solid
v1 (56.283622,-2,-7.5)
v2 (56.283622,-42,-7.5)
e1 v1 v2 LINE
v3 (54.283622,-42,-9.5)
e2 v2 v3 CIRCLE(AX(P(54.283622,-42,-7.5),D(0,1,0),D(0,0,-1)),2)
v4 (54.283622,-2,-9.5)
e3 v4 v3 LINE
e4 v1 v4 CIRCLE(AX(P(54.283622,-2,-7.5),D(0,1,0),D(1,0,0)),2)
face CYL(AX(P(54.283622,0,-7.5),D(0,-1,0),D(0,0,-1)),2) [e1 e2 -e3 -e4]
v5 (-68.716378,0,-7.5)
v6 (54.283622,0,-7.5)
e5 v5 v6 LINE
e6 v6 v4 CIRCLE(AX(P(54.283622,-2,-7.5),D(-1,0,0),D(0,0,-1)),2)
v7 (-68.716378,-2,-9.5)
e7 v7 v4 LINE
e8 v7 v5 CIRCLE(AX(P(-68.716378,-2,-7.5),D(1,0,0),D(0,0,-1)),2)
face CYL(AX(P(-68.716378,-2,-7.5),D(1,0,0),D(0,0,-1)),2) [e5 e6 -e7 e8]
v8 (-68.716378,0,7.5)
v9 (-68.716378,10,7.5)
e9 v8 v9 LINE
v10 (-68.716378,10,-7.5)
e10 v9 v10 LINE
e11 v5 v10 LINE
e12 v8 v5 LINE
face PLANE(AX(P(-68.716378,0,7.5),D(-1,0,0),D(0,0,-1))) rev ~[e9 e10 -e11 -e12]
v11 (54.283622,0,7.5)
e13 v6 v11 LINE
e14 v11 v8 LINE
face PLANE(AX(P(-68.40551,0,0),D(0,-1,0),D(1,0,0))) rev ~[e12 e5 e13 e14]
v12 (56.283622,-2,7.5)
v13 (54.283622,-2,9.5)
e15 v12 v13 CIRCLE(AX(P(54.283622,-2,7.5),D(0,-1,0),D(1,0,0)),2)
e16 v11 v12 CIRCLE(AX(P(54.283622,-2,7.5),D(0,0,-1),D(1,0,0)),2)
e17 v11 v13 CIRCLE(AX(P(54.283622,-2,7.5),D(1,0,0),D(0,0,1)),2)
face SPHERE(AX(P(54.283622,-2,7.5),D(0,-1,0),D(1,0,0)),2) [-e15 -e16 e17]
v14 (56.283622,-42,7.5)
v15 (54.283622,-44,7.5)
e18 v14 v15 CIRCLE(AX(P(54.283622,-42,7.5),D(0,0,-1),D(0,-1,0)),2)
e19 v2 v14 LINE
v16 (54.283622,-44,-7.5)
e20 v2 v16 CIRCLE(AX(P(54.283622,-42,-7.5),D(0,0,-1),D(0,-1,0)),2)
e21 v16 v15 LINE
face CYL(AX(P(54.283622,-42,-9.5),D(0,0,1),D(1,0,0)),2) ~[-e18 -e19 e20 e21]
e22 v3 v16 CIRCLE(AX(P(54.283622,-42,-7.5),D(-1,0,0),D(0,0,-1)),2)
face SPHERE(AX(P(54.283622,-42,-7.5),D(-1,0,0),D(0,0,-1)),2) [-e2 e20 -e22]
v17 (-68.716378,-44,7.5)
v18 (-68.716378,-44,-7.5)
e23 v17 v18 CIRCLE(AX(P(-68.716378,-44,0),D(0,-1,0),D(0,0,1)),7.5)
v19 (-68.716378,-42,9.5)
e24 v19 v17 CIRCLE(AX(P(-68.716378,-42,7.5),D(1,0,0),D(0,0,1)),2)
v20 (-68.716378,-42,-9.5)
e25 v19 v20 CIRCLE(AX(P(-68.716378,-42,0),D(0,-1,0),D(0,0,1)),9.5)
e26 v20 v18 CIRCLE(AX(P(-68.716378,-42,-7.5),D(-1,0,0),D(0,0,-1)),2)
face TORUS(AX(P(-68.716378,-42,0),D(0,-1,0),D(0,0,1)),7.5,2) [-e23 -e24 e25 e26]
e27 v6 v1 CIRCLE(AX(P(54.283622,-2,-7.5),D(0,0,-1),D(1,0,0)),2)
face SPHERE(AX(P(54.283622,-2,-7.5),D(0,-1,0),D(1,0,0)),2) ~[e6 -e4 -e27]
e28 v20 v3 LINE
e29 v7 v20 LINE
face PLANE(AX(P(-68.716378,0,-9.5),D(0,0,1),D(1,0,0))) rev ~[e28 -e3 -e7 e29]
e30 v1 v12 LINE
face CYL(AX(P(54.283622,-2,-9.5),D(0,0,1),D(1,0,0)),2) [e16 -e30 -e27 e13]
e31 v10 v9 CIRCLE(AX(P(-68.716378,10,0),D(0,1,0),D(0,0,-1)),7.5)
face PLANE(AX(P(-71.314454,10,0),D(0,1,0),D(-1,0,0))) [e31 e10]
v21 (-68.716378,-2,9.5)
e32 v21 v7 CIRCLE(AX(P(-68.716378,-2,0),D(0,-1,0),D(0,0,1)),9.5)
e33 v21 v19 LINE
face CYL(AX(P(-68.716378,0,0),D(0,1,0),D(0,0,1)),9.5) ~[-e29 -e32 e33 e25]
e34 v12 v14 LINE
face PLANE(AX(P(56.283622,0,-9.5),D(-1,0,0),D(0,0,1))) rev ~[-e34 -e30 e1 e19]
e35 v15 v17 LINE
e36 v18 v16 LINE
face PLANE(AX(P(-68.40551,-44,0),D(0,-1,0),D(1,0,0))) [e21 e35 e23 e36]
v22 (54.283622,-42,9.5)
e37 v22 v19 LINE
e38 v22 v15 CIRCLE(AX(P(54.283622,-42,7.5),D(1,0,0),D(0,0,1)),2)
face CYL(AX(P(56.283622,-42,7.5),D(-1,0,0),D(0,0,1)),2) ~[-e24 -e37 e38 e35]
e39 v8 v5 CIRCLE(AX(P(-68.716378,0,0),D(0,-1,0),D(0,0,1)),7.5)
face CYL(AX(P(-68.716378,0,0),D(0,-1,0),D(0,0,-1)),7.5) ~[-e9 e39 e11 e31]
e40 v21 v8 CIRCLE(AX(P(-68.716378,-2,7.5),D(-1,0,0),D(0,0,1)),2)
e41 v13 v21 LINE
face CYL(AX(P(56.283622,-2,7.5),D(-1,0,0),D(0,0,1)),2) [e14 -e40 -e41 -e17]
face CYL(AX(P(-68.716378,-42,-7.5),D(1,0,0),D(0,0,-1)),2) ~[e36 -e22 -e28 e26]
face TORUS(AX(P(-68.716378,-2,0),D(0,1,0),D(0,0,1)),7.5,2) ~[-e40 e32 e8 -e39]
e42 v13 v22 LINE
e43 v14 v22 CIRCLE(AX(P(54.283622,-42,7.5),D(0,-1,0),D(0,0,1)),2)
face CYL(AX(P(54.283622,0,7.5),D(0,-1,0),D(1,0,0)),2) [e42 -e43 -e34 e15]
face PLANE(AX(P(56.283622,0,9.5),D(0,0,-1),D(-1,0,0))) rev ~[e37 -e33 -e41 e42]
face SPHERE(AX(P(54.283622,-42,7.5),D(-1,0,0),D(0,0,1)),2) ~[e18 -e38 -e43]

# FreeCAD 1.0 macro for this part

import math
import FreeCAD as App
import Part
import Sketcher

V = App.Vector


def edges_at(feature, points):
    """Names of the edges that pass closest to the given points."""
    edges = feature.Shape.Edges
    near = lambda p: min(range(len(edges)), key=lambda i: edges[i].distToShape(Part.Vertex(*p))[0])
    return sorted({f"Edge{near(p) + 1}" for p in points})

doc = App.newDocument("Part")
body = doc.addObject("PartDesign::Body", "Body")

sketch1 = doc.addObject("Sketcher::SketchObject", "Sketch")
body.addObject(sketch1)
sketch1.AttachmentSupport = (doc.XZ_Plane, [""])
sketch1.MapMode = "FlatFace"
sketch1.addGeometry(Part.ArcOfCircle(Part.Circle(V(-68.716378, 0, 0), V(0, 0, 1), 9.5), math.radians(90), math.radians(270)), False)
sketch1.addGeometry(Part.LineSegment(V(-68.716378, -9.5, 0), V(56.283622, -9.5, 0)), False)
sketch1.addGeometry(Part.LineSegment(V(56.283622, -9.5, 0), V(56.283622, 9.5, 0)), False)
sketch1.addGeometry(Part.LineSegment(V(56.283622, 9.5, 0), V(-68.716378, 9.5, 0)), False)
sketch1.addConstraint(Sketcher.Constraint("Tangent", 0, 2, 1, 1))
sketch1.addConstraint(Sketcher.Constraint("Coincident", 1, 2, 2, 1))
sketch1.addConstraint(Sketcher.Constraint("Coincident", 2, 2, 3, 1))
sketch1.addConstraint(Sketcher.Constraint("Tangent", 3, 2, 0, 1))
sketch1.addConstraint(Sketcher.Constraint("Horizontal", 1))
sketch1.addConstraint(Sketcher.Constraint("Vertical", 2))
sketch1.addConstraint(Sketcher.Constraint("Horizontal", 3))
sketch1.addConstraint(Sketcher.Constraint("PointOnObject", 0, 3, -1))
sketch1.addConstraint(Sketcher.Constraint("Radius", 0, 9.5))
sketch1.addConstraint(Sketcher.Constraint("DistanceX", 1, 1, 1, 2, 125.0))
sketch1.addConstraint(Sketcher.Constraint("DistanceX", 0, 3, -1, 1, 68.716378))
pad1 = doc.addObject("PartDesign::Pad", "Pad")
body.addObject(pad1)
pad1.Profile = sketch1
pad1.Length = 44
doc.recompute()

fillet = doc.addObject("PartDesign::Fillet", "Fillet")
body.addObject(fillet)
fillet.Base = (pad1, edges_at(pad1, [
    (-6.216, -44, 9.5),
    (56.284, -22, 9.5),
    (56.284, -22, -9.5),
    (56.284, -44, 0),
    (56.284, 0, 0),
    (-6.216, 0, -9.5),
    (-6.216, 0, 9.5),
]))
fillet.Radius = 2

sketch2 = doc.addObject("Sketcher::SketchObject", "Sketch001")
body.addObject(sketch2)
sketch2.AttachmentSupport = (doc.XZ_Plane, [""])
sketch2.MapMode = "FlatFace"
sketch2.addGeometry(Part.ArcOfCircle(Part.Circle(V(-68.716378, 0, 0), V(0, 0, 1), 7.5), math.radians(90), math.radians(270)), False)
sketch2.addGeometry(Part.LineSegment(V(-68.716378, 7.5, 0), V(-68.716378, -7.5, 0)), False)
sketch2.addConstraint(Sketcher.Constraint("Coincident", 0, 1, 1, 1))
sketch2.addConstraint(Sketcher.Constraint("Coincident", 1, 2, 0, 2))
sketch2.addConstraint(Sketcher.Constraint("Vertical", 1))
sketch2.addConstraint(Sketcher.Constraint("PointOnObject", 0, 3, -1))
sketch2.addConstraint(Sketcher.Constraint("Radius", 0, 7.5))
sketch2.addConstraint(Sketcher.Constraint("DistanceX", 0, 3, -1, 1, 68.716378))
sketch2.addConstraint(Sketcher.Constraint("DistanceX", 0, 1, -1, 1, 68.716378))
pad2 = doc.addObject("PartDesign::Pad", "Pad001")
body.addObject(pad2)
pad2.Profile = sketch2
pad2.Length = 10
pad2.Reversed = True

doc.recompute()
